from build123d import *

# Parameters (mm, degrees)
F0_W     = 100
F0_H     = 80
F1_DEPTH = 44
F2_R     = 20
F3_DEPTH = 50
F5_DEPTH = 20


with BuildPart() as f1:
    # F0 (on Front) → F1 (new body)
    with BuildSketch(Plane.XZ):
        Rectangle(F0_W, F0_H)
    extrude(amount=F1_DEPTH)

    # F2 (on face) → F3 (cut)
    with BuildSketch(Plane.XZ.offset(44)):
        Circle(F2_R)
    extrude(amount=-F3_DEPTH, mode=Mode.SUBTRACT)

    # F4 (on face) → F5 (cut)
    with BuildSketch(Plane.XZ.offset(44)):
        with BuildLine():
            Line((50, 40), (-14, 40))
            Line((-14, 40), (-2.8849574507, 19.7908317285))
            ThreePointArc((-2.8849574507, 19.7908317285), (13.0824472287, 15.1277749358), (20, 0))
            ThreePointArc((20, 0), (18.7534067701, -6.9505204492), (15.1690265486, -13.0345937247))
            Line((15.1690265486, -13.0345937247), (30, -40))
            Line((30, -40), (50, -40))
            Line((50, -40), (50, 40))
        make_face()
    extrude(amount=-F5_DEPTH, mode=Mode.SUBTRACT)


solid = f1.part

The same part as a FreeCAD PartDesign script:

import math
import FreeCAD as App
import Part
import Sketcher
from FreeCAD import Vector
Q = App.Units.Quantity

doc = App.newDocument("Part")
body = doc.addObject("PartDesign::Body", "Body")

# Sketch on XZ plane
sketch1 = doc.addObject("Sketcher::SketchObject", "Sketch")
body.addObject(sketch1)
sketch1.AttachmentSupport = (doc.XZ_Plane, [""])
sketch1.MapMode = "FlatFace"
sketch1.addGeometry([
    Part.LineSegment(Vector(-50, 40, 0), Vector(-50, -40, 0)),
    Part.LineSegment(Vector(-50, -40, 0), Vector(50, -40, 0)),
    Part.LineSegment(Vector(50, -40, 0), Vector(50, 40, 0)),
    Part.LineSegment(Vector(50, 40, 0), Vector(-50, 40, 0)),
], False)
sketch1.addConstraint([
    Sketcher.Constraint("Coincident", 0, 2, 1, 1),
    Sketcher.Constraint("Coincident", 1, 2, 2, 1),
    Sketcher.Constraint("Coincident", 2, 2, 3, 1),
    Sketcher.Constraint("Coincident", 3, 2, 0, 1),
    Sketcher.Constraint("Vertical", 0),
    Sketcher.Constraint("Horizontal", 1),
    Sketcher.Constraint("Vertical", 2),
    Sketcher.Constraint("Horizontal", 3),
    Sketcher.Constraint("Symmetric", 0, 2, 2, 2, -1, 1),
    Sketcher.Constraint("DistanceX", 1, 1, 1, 2, Q("100 mm")),
    Sketcher.Constraint("DistanceY", 0, 2, 0, 1, Q("80 mm")),
])
pad1 = doc.addObject("PartDesign::Pad", "Pad")
body.addObject(pad1)
pad1.Profile = sketch1
pad1.Length = 44

# Sketch on XZ plane
sketch2 = doc.addObject("Sketcher::SketchObject", "Sketch001")
body.addObject(sketch2)
sketch2.AttachmentSupport = (doc.XZ_Plane, [""])
sketch2.MapMode = "FlatFace"
sketch2.AttachmentOffset = App.Placement(Vector(0, 0, 44), App.Rotation())
sketch2.addGeometry(Part.Circle(Vector(0, 0, 0), Vector(0, 0, 1), 20), False)
sketch2.addConstraint([
    Sketcher.Constraint("Coincident", 0, 3, -1, 1),
    Sketcher.Constraint("Diameter", 0, Q("40 mm")),
])
pocket1 = doc.addObject("PartDesign::Pocket", "Pocket")
body.addObject(pocket1)
pocket1.Profile = sketch2
pocket1.Length = 50

# Sketch on XZ plane
sketch3 = doc.addObject("Sketcher::SketchObject", "Sketch002")
body.addObject(sketch3)
sketch3.AttachmentSupport = (doc.XZ_Plane, [""])
sketch3.MapMode = "FlatFace"
sketch3.AttachmentOffset = App.Placement(Vector(0, 0, 44), App.Rotation())
sketch3.addGeometry([
    Part.LineSegment(Vector(50, 40, 0), Vector(-14, 40, 0)),  # 0
    Part.LineSegment(Vector(-14, 40, 0), Vector(-2.884957, 19.790832, 0)),  # 1
    Part.ArcOfCircle(Part.Circle(Vector(0, 0, 0), Vector(0, 0, 1), 20), math.radians(0), math.radians(98.293728)),  # 2
    Part.ArcOfCircle(Part.Circle(Vector(0, 0, 0), Vector(0, 0, 1), 20), math.radians(-40.67214), math.radians(0)),  # 3
    Part.LineSegment(Vector(15.169027, -13.034594, 0), Vector(30, -40, 0)),  # 4
    Part.LineSegment(Vector(30, -40, 0), Vector(50, -40, 0)),  # 5
    Part.LineSegment(Vector(50, -40, 0), Vector(50, 40, 0)),  # 6
], False)
sketch3.addConstraint([
    Sketcher.Constraint("Coincident", 0, 2, 1, 1),
    Sketcher.Constraint("Coincident", 1, 2, 2, 2),
    Sketcher.Constraint("Tangent", 2, 1, 3, 2),
    Sketcher.Constraint("Coincident", 3, 1, 4, 1),
    Sketcher.Constraint("Coincident", 4, 2, 5, 1),
    Sketcher.Constraint("Coincident", 5, 2, 6, 1),
    Sketcher.Constraint("Coincident", 6, 2, 0, 1),
    Sketcher.Constraint("Horizontal", 0),
    Sketcher.Constraint("Horizontal", 5),
    Sketcher.Constraint("Vertical", 6),
    Sketcher.Constraint("Coincident", 2, 3, -1, 1),
    Sketcher.Constraint("Equal", 2, 3),
    Sketcher.Constraint("PointOnObject", 2, 1, -1),
    Sketcher.Constraint("Parallel", 1, 4),
    Sketcher.Constraint("Radius", 2, Q("20 mm")),
    Sketcher.Constraint("DistanceX", 0, 2, 0, 1, Q("64 mm")),
    Sketcher.Constraint("DistanceX", 5, 1, 5, 2, Q("20 mm")),
    Sketcher.Constraint("DistanceY", 6, 1, 6, 2, Q("80 mm")),
    Sketcher.Constraint("DistanceX", 0, 2, -1, 1, Q("14 mm")),
    Sketcher.Constraint("DistanceY", -1, 1, 0, 2, Q("40 mm")),
    Sketcher.Constraint("DistanceY", -1, 1, 1, 2, Q("19.790832 mm")),
])
pocket2 = doc.addObject("PartDesign::Pocket", "Pocket001")
body.addObject(pocket2)
pocket2.Profile = sketch3
pocket2.Length = 20

doc.recompute()
